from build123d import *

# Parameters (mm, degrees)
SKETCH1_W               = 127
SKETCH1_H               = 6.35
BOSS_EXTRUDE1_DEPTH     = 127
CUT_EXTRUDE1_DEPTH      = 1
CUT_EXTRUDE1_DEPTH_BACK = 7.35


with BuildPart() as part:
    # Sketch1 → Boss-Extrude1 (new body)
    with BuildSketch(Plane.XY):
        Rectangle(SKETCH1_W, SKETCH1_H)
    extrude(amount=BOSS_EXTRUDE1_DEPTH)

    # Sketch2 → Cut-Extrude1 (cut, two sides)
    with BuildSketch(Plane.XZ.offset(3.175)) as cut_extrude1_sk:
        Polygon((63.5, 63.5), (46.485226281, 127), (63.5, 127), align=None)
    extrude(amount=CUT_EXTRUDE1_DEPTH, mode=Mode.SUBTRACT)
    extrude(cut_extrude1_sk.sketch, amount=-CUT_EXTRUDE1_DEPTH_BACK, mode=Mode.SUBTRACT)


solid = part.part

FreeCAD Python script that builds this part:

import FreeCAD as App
import Part
import Sketcher

V = App.Vector
Q = App.Units.Quantity


def add_polygon(sketch, points):
    """Adds a closed chain of lines whose ends are joined by coincident constraints."""
    first, n = sketch.GeometryCount, len(points)
    for a, b in zip(points, points[1:] + points[:1]):
        sketch.addGeometry(Part.LineSegment(App.Vector(*a, 0), App.Vector(*b, 0)), False)
    for i in range(n):
        sketch.addConstraint(Sketcher.Constraint("Coincident", first + i, 2, first + (i + 1) % n, 1))

doc = App.newDocument("Part")
params = doc.addObject("Spreadsheet::Sheet", "Params")
for row, (alias, value) in enumerate([
    ("sketch1_width", "5 in"),
    ("sketch1_height", "0.25 in"),
    ("pad1_length", "5 in"),
    ("sketch2_height", "2.5 in"),
], start=1):
    params.set(f"A{row}", alias)
    params.set(f"B{row}", "=" + value)
    params.setAlias(f"B{row}", alias)

body = doc.addObject("PartDesign::Body", "Body")

# Sketch on XY plane
sketch1 = doc.addObject("Sketcher::SketchObject", "Sketch")
body.addObject(sketch1)
sketch1.AttachmentSupport = (doc.XY_Plane, [""])
sketch1.MapMode = "FlatFace"
add_polygon(sketch1, [(-64, 3), (-64, -3), (64, -3), (64, 3)])  # lines 0-3
sketch1.addConstraint([
    Sketcher.Constraint("Vertical", 0),
    Sketcher.Constraint("Horizontal", 1),
    Sketcher.Constraint("Vertical", 2),
    Sketcher.Constraint("Horizontal", 3),
    Sketcher.Constraint("Symmetric", 0, 2, 2, 2, -1, 1),
    Sketcher.Constraint("DistanceX", 1, 1, 1, 2, Q("5 in")),
    Sketcher.Constraint("DistanceY", 0, 2, 0, 1, Q("0.25 in")),
])
sketch1.setExpression("Constraints[9]", "Params.sketch1_width")
sketch1.setExpression("Constraints[10]", "Params.sketch1_height")
pad1 = doc.addObject("PartDesign::Pad", "Pad")
body.addObject(pad1)
pad1.Profile = sketch1
pad1.setExpression("Length", "Params.pad1_length")

# Sketch on XZ plane
sketch2 = doc.addObject("Sketcher::SketchObject", "Sketch001")
body.addObject(sketch2)
sketch2.AttachmentSupport = (doc.XZ_Plane, [""])
sketch2.MapMode = "FlatFace"
sketch2.AttachmentOffset = App.Placement(V(0, 0, 0.125 * 25.4), App.Rotation())
add_polygon(sketch2, [(46, 127), (64, 64), (64, 127)])  # lines 0-2
sketch2.addConstraint([
    Sketcher.Constraint("Vertical", 1),
    Sketcher.Constraint("Horizontal", 2),
    Sketcher.Constraint("DistanceY", 1, 1, 1, 2, Q("2.5 in")),
    Sketcher.Constraint("DistanceY", -1, 1, 1, 2, Q("5 in")),
    Sketcher.Constraint("Angle", 0, Q("-75 deg")),
    Sketcher.Constraint("DistanceX", -1, 1, 0, 2, Q("2.5 in")),
])
sketch2.setExpression("Constraints[5]", "Params.sketch2_height")
pocket1 = doc.addObject("PartDesign::Pocket", "Pocket")
body.addObject(pocket1)
pocket1.Profile = sketch2
pocket1.Type = "ThroughAll"
pocket1.Midplane = True

doc.recompute()
